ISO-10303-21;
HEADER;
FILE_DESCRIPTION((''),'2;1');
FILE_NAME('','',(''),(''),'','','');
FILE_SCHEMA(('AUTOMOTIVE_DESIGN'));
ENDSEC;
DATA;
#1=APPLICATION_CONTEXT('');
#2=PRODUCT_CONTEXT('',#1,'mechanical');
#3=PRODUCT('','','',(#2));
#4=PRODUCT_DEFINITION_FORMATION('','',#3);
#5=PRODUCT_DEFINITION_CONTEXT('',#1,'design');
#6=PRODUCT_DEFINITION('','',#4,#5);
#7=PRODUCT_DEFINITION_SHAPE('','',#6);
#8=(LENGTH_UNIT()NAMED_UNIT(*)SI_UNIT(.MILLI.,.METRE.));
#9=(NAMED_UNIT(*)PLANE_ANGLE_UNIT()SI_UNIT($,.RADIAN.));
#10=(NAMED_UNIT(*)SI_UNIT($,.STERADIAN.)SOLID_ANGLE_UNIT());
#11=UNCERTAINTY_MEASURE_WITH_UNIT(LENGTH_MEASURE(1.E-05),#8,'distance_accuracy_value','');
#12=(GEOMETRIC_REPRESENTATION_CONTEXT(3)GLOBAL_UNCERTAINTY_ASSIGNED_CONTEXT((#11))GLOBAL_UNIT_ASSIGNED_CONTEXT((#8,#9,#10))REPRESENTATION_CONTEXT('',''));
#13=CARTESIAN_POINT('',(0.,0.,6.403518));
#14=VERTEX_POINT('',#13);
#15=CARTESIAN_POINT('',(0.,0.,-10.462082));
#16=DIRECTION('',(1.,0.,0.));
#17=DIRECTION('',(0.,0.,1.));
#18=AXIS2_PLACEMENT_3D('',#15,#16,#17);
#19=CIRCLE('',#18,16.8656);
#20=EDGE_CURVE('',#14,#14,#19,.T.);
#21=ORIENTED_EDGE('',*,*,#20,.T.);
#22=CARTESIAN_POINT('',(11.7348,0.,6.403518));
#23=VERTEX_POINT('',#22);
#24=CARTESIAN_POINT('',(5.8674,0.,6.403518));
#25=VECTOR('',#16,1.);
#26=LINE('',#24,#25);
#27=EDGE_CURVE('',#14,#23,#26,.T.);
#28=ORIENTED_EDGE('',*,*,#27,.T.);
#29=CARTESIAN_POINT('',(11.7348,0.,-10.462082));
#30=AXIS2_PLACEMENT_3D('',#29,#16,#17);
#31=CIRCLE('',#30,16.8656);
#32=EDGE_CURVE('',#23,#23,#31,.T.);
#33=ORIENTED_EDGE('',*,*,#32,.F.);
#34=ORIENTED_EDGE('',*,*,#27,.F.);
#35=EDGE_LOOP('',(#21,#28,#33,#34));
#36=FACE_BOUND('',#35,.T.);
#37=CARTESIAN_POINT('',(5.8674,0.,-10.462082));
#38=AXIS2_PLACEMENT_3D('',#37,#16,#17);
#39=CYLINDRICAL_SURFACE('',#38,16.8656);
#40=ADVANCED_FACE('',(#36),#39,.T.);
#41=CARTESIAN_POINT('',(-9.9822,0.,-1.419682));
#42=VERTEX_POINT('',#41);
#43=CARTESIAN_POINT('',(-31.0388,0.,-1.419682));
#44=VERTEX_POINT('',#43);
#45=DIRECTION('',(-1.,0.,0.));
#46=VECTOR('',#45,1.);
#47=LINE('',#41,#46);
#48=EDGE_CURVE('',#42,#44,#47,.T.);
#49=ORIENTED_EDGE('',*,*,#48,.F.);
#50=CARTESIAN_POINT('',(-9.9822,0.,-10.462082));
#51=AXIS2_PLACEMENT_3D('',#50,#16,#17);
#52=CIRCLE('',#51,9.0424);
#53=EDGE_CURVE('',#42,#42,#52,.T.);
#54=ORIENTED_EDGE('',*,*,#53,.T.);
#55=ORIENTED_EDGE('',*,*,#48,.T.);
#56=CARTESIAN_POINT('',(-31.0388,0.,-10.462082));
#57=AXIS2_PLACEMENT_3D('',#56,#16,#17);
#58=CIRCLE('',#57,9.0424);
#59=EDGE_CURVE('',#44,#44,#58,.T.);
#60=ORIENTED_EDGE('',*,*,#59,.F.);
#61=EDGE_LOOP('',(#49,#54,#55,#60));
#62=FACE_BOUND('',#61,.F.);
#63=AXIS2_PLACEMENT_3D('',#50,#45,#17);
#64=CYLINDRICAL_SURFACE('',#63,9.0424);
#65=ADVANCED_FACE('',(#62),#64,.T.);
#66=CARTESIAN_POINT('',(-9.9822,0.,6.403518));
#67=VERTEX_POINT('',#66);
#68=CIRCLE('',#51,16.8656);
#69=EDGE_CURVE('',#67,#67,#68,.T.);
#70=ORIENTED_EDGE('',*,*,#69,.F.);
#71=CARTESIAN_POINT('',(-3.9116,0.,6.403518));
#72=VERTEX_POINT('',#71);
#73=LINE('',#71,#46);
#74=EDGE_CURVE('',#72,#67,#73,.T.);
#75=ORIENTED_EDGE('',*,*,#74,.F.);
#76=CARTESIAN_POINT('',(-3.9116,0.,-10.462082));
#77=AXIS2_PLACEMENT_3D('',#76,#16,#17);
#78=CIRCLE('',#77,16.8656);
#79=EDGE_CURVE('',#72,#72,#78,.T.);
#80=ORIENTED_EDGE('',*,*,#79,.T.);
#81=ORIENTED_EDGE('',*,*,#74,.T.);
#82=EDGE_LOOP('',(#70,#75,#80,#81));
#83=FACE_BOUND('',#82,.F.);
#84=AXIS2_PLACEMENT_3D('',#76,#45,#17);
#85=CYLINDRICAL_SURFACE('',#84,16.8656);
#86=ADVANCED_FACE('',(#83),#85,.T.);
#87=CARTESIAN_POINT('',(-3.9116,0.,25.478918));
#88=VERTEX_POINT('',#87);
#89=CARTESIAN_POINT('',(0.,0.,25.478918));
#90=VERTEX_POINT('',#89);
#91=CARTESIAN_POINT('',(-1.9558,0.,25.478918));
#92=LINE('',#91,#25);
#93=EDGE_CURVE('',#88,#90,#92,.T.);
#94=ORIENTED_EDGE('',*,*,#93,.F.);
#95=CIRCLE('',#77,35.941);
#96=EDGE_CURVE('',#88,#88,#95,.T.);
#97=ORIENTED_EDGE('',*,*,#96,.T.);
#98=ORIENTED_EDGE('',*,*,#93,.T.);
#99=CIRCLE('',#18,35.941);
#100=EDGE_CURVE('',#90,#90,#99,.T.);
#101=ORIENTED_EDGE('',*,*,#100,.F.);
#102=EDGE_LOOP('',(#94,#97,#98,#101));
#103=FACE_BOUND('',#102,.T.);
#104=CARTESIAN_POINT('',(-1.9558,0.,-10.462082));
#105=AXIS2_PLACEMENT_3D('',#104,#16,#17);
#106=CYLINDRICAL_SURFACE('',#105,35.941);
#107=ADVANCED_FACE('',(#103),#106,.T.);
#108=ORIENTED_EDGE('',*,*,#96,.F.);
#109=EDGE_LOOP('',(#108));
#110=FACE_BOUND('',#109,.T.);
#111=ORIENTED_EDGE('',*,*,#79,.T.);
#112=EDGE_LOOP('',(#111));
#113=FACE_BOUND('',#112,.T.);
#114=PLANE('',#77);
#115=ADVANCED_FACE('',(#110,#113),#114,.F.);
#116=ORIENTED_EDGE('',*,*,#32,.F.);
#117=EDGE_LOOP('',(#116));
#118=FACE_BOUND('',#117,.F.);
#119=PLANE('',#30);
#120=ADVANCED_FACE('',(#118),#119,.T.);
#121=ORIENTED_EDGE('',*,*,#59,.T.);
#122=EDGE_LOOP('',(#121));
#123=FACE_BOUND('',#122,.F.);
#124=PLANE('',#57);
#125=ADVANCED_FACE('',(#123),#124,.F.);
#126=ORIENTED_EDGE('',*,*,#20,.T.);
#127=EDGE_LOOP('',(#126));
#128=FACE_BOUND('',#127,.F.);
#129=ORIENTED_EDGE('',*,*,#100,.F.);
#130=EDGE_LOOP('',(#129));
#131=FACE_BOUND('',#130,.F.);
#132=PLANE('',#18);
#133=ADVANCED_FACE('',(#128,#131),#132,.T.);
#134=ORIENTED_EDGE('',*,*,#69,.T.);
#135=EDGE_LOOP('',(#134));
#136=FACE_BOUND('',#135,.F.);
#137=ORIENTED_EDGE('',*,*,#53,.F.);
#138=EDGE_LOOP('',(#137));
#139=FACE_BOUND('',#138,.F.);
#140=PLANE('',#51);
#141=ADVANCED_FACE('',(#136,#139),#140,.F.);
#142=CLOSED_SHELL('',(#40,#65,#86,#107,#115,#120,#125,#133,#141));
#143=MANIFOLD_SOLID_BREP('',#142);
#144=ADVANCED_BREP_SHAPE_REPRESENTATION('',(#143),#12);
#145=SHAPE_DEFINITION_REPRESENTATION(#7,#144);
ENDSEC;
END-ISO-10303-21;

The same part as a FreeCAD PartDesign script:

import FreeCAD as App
import Part
import Sketcher

V = App.Vector
Q = App.Units.Quantity

doc = App.newDocument("Part")
body = doc.addObject("PartDesign::Body", "Body")

# Sketch on XZ plane
sketch1 = body.newObject("Sketcher::SketchObject", "Sketch")
sketch1.AttachmentSupport = (doc.getObject("XZ_Plane"), [""])
sketch1.MapMode = "FlatFace"
sketch1.addGeometry([
    Part.LineSegment(V(-3.9, 25.5, 0), V(-3.9, 6.4, 0)),  # 0
    Part.LineSegment(V(-3.9, 6.4, 0), V(-10, 6.4, 0)),  # 1
    Part.LineSegment(V(-10, 6.4, 0), V(-10, -1.4, 0)),  # 2
    Part.LineSegment(V(-10, -1.4, 0), V(-31, -1.4, 0)),  # 3
    Part.LineSegment(V(-31, -1.4, 0), V(-31, -10.5, 0)),  # 4
    Part.LineSegment(V(-31, -10.5, 0), V(11.7, -10.5, 0)),  # 5
    Part.LineSegment(V(11.7, -10.5, 0), V(11.7, 6.4, 0)),  # 6
    Part.LineSegment(V(11.7, 6.4, 0), V(0, 6.4, 0)),  # 7
    Part.LineSegment(V(0, 6.4, 0), V(0, 25.5, 0)),  # 8
    Part.LineSegment(V(0, 25.5, 0), V(-3.9, 25.5, 0)),  # 9
], False)
sketch1.addGeometry(Part.LineSegment(V(-31, -10.5, 0), V(11.7, -10.5, 0)), True)  # axis
sketch1.addConstraint([
    Sketcher.Constraint("Coincident", 0, 2, 1, 1),
    Sketcher.Constraint("Coincident", 1, 2, 2, 1),
    Sketcher.Constraint("Coincident", 2, 2, 3, 1),
    Sketcher.Constraint("Coincident", 3, 2, 4, 1),
    Sketcher.Constraint("Coincident", 4, 2, 5, 1),
    Sketcher.Constraint("Coincident", 5, 2, 6, 1),
    Sketcher.Constraint("Coincident", 6, 2, 7, 1),
    Sketcher.Constraint("Coincident", 7, 2, 8, 1),
    Sketcher.Constraint("Coincident", 8, 2, 9, 1),
    Sketcher.Constraint("Coincident", 9, 2, 0, 1),
    Sketcher.Constraint("Vertical", 0),
    Sketcher.Constraint("Horizontal", 1),
    Sketcher.Constraint("Vertical", 2),
    Sketcher.Constraint("Horizontal", 3),
    Sketcher.Constraint("Vertical", 4),
    Sketcher.Constraint("Horizontal", 5),
    Sketcher.Constraint("Vertical", 6),
    Sketcher.Constraint("Horizontal", 7),
    Sketcher.Constraint("Vertical", 8),
    Sketcher.Constraint("Horizontal", 9),
    Sketcher.Constraint("Horizontal", 10),
    Sketcher.Constraint("Coincident", 10, 1, 4, 2),
    Sketcher.Constraint("PointOnObject", 7, 2, -2),
    Sketcher.Constraint("Horizontal", 1, 2, 6, 2),
    Sketcher.Constraint("Vertical", 6, 2, 10, 2),
    Sketcher.Constraint("DistanceX", 1, 2, 1, 1, Q("0.239 in")),
    Sketcher.Constraint("DistanceX", 3, 2, 3, 1, Q("0.829 in")),
    Sketcher.Constraint("DistanceX", 5, 1, 5, 2, Q("1.684 in")),
    Sketcher.Constraint("DistanceX", 7, 2, 7, 1, Q("0.462 in")),
    Sketcher.Constraint("DistanceY", 0, 2, 0, 1, Q("0.751 in")),
    Sketcher.Constraint("DistanceY", 2, 2, 2, 1, Q("0.308 in")),
    Sketcher.Constraint("DistanceY", 4, 2, 4, 1, Q("0.356 in")),
    Sketcher.Constraint("DistanceY", -1, 1, 8, 2, Q("25.478918 mm")),
])
revolution = body.newObject("PartDesign::Revolution", "Revolution")
revolution.Profile = sketch1
revolution.ReferenceAxis = (sketch1, ["Axis0"])
revolution.Angle = 360

doc.recompute()
